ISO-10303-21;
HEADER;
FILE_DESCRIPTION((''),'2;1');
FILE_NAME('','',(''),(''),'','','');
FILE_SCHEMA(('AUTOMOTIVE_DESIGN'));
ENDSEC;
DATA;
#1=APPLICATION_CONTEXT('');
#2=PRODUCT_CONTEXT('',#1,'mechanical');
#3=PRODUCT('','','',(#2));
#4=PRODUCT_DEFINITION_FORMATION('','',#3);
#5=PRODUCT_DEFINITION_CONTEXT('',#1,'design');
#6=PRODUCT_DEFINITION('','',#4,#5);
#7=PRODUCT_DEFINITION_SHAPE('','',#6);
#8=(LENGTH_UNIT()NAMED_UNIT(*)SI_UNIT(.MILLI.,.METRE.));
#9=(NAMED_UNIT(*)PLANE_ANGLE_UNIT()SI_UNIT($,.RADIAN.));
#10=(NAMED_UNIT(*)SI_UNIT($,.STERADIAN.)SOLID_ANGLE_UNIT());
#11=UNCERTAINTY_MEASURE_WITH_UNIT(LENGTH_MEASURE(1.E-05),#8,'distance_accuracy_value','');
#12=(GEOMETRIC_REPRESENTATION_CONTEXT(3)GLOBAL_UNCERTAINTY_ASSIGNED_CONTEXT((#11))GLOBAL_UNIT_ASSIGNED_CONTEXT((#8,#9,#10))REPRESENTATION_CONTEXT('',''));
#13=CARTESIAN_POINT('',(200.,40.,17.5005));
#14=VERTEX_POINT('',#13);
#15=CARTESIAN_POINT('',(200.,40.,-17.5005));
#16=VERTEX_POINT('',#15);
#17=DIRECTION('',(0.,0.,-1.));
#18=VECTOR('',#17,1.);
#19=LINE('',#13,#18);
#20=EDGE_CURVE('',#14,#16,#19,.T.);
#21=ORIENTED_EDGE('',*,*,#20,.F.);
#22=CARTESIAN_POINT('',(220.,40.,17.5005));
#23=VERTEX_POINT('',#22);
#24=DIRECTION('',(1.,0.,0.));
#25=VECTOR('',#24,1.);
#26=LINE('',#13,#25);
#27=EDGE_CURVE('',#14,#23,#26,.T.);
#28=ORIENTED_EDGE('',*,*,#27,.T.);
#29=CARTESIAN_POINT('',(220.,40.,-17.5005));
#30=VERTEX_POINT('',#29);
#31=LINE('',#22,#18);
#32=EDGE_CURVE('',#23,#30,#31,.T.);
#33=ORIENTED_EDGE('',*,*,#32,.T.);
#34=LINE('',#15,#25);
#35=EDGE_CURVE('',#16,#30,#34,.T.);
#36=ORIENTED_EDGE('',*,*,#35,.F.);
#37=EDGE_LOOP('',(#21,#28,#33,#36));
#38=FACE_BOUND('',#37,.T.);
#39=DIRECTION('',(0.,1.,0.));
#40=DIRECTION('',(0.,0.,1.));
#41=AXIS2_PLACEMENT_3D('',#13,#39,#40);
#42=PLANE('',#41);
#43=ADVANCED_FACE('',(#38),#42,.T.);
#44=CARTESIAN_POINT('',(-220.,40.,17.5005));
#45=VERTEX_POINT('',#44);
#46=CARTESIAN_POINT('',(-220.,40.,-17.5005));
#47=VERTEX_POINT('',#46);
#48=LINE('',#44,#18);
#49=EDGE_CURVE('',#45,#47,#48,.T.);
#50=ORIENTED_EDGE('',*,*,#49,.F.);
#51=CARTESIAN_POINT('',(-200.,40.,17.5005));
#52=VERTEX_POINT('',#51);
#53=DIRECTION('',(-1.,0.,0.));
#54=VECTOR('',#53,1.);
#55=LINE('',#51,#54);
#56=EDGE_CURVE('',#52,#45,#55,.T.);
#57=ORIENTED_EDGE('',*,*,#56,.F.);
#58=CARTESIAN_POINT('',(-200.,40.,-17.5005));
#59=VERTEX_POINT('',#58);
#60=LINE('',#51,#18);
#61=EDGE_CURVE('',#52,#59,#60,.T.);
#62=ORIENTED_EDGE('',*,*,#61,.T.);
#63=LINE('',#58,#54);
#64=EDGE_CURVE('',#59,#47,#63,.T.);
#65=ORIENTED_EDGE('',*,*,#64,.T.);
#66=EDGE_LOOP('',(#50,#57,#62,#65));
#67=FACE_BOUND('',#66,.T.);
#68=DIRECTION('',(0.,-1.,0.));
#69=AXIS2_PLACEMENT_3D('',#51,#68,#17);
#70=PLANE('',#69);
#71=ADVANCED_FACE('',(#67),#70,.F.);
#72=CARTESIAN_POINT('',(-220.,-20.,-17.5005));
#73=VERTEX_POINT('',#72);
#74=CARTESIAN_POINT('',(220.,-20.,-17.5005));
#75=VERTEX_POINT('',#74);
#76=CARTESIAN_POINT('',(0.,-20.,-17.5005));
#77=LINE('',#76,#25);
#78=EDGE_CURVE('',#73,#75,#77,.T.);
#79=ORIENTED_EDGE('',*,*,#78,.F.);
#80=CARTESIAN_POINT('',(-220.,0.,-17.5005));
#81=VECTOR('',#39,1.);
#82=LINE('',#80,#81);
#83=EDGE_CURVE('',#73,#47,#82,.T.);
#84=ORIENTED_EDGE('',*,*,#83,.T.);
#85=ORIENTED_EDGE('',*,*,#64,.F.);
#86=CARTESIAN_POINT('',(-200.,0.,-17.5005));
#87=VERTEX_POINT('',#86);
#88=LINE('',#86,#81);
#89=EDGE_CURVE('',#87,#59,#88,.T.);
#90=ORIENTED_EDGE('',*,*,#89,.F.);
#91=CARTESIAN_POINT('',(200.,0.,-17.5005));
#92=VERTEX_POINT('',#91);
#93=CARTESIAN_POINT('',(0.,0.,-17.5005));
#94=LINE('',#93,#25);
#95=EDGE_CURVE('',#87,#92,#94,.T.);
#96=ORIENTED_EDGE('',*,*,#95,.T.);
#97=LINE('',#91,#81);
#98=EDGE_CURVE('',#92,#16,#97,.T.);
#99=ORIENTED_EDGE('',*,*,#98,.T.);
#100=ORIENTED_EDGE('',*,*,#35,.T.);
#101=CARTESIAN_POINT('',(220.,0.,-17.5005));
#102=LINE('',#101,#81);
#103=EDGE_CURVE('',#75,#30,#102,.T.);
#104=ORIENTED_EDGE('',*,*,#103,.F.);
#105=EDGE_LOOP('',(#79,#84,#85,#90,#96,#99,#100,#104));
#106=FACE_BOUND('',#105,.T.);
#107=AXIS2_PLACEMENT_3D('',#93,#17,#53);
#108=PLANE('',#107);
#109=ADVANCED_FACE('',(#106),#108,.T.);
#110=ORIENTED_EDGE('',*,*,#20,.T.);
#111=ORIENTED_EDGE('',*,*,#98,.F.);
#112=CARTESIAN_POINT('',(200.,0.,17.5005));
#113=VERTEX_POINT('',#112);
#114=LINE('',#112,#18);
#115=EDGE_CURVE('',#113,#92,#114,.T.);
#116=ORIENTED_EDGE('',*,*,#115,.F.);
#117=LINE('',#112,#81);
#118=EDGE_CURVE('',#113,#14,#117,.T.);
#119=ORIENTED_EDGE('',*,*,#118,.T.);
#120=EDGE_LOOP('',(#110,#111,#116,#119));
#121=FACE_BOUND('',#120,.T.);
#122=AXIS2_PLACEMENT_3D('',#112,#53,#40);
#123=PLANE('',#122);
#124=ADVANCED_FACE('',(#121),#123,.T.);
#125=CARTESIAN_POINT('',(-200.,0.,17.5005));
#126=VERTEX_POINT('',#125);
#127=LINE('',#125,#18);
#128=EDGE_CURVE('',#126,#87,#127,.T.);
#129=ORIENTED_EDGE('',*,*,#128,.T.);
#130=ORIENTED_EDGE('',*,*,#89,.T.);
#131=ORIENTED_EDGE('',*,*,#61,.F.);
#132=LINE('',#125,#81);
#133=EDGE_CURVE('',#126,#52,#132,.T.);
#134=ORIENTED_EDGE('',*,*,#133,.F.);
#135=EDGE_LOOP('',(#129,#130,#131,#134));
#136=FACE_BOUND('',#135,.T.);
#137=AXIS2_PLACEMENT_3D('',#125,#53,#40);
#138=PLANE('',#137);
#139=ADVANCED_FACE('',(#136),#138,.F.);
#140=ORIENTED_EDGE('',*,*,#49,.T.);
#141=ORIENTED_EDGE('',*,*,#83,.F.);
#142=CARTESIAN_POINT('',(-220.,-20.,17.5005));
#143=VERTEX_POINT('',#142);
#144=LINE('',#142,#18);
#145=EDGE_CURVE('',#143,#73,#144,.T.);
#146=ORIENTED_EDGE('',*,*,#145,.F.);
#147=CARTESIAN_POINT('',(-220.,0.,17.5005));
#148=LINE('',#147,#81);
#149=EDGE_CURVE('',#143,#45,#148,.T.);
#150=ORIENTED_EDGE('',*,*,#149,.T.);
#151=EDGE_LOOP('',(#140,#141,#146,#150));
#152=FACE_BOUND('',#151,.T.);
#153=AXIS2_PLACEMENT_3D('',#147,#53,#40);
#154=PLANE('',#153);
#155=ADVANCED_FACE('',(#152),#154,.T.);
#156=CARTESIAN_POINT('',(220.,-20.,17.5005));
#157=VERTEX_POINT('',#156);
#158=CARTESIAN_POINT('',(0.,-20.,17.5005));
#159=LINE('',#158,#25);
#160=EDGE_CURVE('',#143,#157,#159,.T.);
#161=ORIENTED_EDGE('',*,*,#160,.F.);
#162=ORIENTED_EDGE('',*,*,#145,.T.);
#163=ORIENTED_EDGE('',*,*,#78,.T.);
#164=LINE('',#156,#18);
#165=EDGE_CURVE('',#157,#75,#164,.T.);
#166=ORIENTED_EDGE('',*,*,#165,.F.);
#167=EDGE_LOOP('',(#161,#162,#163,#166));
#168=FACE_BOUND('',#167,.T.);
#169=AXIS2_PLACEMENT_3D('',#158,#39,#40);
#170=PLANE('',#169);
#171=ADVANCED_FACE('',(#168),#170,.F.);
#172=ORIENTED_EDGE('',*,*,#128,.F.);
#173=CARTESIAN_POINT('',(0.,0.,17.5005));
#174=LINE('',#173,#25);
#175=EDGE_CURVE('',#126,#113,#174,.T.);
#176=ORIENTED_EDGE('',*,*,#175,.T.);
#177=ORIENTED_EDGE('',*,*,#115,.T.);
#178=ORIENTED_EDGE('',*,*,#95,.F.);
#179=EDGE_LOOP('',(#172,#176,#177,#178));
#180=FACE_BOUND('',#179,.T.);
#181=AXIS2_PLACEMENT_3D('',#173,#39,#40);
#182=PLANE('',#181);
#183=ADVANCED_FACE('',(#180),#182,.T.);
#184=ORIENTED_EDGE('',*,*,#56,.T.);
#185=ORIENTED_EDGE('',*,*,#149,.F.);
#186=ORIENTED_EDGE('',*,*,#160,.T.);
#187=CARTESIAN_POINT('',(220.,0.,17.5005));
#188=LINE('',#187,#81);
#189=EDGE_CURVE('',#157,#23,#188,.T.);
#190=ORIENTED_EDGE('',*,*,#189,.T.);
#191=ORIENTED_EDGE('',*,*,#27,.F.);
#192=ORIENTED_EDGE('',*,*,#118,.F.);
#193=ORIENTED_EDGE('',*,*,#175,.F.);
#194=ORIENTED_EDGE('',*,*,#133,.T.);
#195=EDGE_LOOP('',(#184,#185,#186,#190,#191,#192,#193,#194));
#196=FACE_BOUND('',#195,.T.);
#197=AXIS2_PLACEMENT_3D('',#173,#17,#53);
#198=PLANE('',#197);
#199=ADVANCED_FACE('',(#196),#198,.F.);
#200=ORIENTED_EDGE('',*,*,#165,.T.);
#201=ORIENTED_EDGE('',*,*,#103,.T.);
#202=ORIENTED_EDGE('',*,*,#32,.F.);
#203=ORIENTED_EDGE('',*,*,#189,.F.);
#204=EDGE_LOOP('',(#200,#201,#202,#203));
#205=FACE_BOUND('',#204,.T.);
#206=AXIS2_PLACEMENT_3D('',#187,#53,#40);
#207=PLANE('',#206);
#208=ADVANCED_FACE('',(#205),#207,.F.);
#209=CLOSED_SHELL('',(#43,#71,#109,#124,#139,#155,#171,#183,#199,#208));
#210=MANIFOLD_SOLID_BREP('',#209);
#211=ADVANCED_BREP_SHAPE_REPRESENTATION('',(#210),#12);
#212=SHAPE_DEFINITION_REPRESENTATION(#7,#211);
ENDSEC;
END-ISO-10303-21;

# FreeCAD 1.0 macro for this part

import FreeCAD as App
import Part
import Sketcher
from FreeCAD import Vector
Q = App.Units.Quantity


def add_polygon(sketch, points):
    """Adds a closed chain of lines whose ends are joined by coincident constraints."""
    first, n = sketch.GeometryCount, len(points)
    for a, b in zip(points, points[1:] + points[:1]):
        sketch.addGeometry(Part.LineSegment(App.Vector(*a, 0), App.Vector(*b, 0)), False)
    for i in range(n):
        sketch.addConstraint(Sketcher.Constraint("Coincident", first + i, 2, first + (i + 1) % n, 1))

doc = App.newDocument("Part")
params = doc.addObject("Spreadsheet::Sheet", "Params")
for row, (alias, value) in enumerate([
    ("sketch1_width", "200 mm"),
    ("sketch1_width2", "220 mm"),
    ("sketch1_height", "60 mm"),
    ("pad1_length", "35.001 mm"),
], start=1):
    params.set(f"A{row}", alias)
    params.set(f"B{row}", "=" + value)
    params.setAlias(f"B{row}", alias)

body = doc.addObject("PartDesign::Body", "Body")

# Sketch on XY plane
sketch1 = body.newObject("Sketcher::SketchObject", "Sketch")
sketch1.AttachmentSupport = (doc.getObject("XY_Plane"), [""])
sketch1.MapMode = "FlatFace"
add_polygon(sketch1, [(200, 0), (0, 0), (0, -20), (220, -20), (220, 40), (200, 40)])  # lines 0-5
sketch1.addConstraint([
    Sketcher.Constraint("Horizontal", 0),
    Sketcher.Constraint("Vertical", 1),
    Sketcher.Constraint("Horizontal", 2),
    Sketcher.Constraint("Vertical", 3),
    Sketcher.Constraint("Horizontal", 4),
    Sketcher.Constraint("Vertical", 5),
    Sketcher.Constraint("Coincident", 0, 2, -1, 1),
    Sketcher.Constraint("Equal", 4, 1),
    Sketcher.Constraint("DistanceX", 0, 2, 0, 1, Q("200 mm")),
    Sketcher.Constraint("DistanceX", 2, 1, 2, 2, Q("220 mm")),
    Sketcher.Constraint("DistanceY", 3, 1, 3, 2, Q("60 mm")),
])
sketch1.setExpression("Constraints[14]", "Params.sketch1_width")
sketch1.setExpression("Constraints[15]", "Params.sketch1_width2")
sketch1.setExpression("Constraints[16]", "Params.sketch1_height")
pad1 = body.newObject("PartDesign::Pad", "Pad")
pad1.Profile = sketch1
pad1.setExpression("Length", "Params.pad1_length")
pad1.Midplane = True
doc.recompute()

mirrored = body.newObject("PartDesign::Mirrored", "Mirrored")
mirrored.Originals = [pad1]
mirrored.MirrorPlane = (doc.getObject("YZ_Plane"), [""])
body.Tip = mirrored

doc.recompute()
